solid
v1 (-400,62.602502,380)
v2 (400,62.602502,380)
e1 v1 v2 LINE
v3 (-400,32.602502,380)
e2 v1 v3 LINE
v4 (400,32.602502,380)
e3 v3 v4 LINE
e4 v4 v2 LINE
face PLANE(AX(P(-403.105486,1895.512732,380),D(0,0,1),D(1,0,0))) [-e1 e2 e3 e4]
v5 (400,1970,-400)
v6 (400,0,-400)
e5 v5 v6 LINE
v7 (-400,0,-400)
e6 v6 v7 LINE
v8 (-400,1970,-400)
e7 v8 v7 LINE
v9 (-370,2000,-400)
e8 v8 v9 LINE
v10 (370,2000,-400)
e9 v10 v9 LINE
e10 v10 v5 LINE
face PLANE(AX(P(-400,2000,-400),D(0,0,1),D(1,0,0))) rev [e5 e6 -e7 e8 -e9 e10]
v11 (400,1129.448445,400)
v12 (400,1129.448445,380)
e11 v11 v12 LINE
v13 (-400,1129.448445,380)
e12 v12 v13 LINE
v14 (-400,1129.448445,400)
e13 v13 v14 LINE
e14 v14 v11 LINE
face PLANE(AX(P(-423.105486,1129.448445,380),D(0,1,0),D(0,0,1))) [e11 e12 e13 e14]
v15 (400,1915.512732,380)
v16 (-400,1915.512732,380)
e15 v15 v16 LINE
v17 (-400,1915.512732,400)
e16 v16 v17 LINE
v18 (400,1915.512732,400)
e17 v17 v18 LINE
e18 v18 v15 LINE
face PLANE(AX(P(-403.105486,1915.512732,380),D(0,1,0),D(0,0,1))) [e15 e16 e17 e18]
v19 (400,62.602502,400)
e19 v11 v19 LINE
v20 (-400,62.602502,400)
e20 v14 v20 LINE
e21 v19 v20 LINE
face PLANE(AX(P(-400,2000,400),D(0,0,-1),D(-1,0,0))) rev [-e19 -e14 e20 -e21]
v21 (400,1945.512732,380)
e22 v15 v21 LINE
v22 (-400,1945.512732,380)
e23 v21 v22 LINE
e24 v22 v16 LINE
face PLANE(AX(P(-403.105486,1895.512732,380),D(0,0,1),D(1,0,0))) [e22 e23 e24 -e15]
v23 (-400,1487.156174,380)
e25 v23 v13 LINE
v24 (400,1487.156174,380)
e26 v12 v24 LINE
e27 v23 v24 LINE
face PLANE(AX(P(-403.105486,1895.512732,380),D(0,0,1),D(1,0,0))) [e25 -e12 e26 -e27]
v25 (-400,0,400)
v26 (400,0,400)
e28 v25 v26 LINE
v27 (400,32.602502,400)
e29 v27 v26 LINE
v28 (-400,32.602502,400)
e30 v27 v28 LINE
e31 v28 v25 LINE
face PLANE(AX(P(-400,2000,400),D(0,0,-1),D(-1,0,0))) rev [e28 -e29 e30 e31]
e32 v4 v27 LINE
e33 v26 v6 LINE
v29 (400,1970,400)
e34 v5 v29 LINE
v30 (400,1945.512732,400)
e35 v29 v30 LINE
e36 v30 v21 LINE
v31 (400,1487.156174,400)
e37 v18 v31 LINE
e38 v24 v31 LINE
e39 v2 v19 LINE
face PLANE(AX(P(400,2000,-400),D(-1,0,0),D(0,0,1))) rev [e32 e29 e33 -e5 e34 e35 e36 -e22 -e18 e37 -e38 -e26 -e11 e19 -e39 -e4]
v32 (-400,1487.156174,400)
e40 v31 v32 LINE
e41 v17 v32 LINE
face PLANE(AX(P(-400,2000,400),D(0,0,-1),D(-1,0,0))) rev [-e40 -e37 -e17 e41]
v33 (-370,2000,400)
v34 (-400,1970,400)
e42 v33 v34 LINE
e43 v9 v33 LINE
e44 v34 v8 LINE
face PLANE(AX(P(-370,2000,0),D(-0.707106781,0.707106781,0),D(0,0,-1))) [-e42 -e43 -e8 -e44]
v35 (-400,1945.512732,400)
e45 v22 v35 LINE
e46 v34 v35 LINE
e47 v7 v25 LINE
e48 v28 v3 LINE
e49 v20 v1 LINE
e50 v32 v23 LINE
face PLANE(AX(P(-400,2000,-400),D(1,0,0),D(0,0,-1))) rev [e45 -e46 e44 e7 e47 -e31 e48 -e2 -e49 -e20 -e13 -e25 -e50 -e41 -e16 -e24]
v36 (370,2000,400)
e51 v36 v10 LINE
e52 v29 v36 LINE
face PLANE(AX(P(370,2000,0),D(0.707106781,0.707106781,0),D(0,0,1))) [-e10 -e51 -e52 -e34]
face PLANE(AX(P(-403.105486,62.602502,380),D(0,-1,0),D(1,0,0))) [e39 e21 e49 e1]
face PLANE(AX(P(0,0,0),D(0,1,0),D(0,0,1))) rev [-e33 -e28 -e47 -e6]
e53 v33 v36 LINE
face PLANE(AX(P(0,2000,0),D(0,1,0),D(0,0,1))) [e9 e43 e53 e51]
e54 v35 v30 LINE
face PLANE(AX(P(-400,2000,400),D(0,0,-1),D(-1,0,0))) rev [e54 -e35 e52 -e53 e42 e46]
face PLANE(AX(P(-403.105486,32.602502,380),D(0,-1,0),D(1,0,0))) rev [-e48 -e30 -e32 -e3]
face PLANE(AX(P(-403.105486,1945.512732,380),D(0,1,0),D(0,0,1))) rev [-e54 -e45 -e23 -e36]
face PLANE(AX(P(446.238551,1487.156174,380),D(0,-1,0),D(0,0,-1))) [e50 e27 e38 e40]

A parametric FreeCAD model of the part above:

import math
import FreeCAD as App
import Part
import Sketcher

V = App.Vector
Q = App.Units.Quantity


def edges_at(feature, points):
    """Names of the edges that pass closest to the given points."""
    edges = feature.Shape.Edges
    near = lambda p: min(range(len(edges)), key=lambda i: edges[i].distToShape(Part.Vertex(*p))[0])
    return sorted({f"Edge{near(p) + 1}" for p in points})


def add_polygon(sketch, points):
    """Adds a closed chain of lines whose ends are joined by coincident constraints."""
    first, n = sketch.GeometryCount, len(points)
    for a, b in zip(points, points[1:] + points[:1]):
        sketch.addGeometry(Part.LineSegment(App.Vector(*a, 0), App.Vector(*b, 0)), False)
    for i in range(n):
        sketch.addConstraint(Sketcher.Constraint("Coincident", first + i, 2, first + (i + 1) % n, 1))

doc = App.newDocument("Part")
body = doc.addObject("PartDesign::Body", "Body")

# Sketch on XZ plane
sketch1 = body.newObject("Sketcher::SketchObject", "Sketch")
sketch1.AttachmentSupport = (doc.getObject("XZ_Plane"), [""])
sketch1.MapMode = "FlatFace"
add_polygon(sketch1, [(-400, -400), (-400, 400), (400, 400), (400, -400)])  # lines 0-3
sketch1.addConstraint(Sketcher.Constraint("Vertical", 0))
sketch1.addConstraint(Sketcher.Constraint("Horizontal", 1))
sketch1.addConstraint(Sketcher.Constraint("Vertical", 2))
sketch1.addConstraint(Sketcher.Constraint("Horizontal", 3))
sketch1.addConstraint(Sketcher.Constraint("Symmetric", 0, 2, 2, 2, -1, 1))
sketch1.addConstraint(Sketcher.Constraint("Equal", 3, 0))
sketch1.addConstraint(Sketcher.Constraint("DistanceX", 1, 1, 1, 2, Q("800 mm")))
pad1 = body.newObject("PartDesign::Pad", "Pad")
pad1.Profile = sketch1
pad1.Length = 2000
pad1.Reversed = True

# Sketch on XY plane
sketch2 = body.newObject("Sketcher::SketchObject", "Sketch001")
sketch2.AttachmentSupport = (doc.getObject("XY_Plane"), [""])
sketch2.MapMode = "FlatFace"
sketch2.AttachmentOffset = App.Placement(V(0, 0, 400), App.Rotation())
sketch2.addGeometry(Part.LineSegment(V(-453.105486, 1895.512732, 0), V(-453.105486, 82.602502, 0)), False)
sketch2.addGeometry(Part.ArcOfCircle(Part.Circle(V(-403.105486, 82.602502, 0), V(0, 0, 1), 50), math.radians(-180), math.radians(-90)), False)
sketch2.addGeometry(Part.LineSegment(V(-403.105486, 32.602502, 0), V(426.238551, 32.602502, 0)), False)
sketch2.addGeometry(Part.ArcOfCircle(Part.Circle(V(426.238551, 82.602502, 0), V(0, 0, 1), 50), math.radians(-90), math.radians(0)), False)
sketch2.addGeometry(Part.LineSegment(V(476.238551, 82.602502, 0), V(476.238551, 1895.512732, 0)), False)
sketch2.addGeometry(Part.ArcOfCircle(Part.Circle(V(426.238551, 1895.512732, 0), V(0, 0, 1), 50), math.radians(0), math.radians(90)), False)
sketch2.addGeometry(Part.LineSegment(V(426.238551, 1945.512732, 0), V(-403.105486, 1945.512732, 0)), False)
sketch2.addGeometry(Part.ArcOfCircle(Part.Circle(V(-403.105486, 1895.512732, 0), V(0, 0, 1), 50), math.radians(90), math.radians(180)), False)
sketch2.addGeometry(Part.LineSegment(V(426.238551, 62.602502, 0), V(-403.105486, 62.602502, 0)), False)
sketch2.addGeometry(Part.ArcOfCircle(Part.Circle(V(-403.105486, 82.602502, 0), V(0, 0, 1), 20), math.radians(-180), math.radians(-90)), False)
sketch2.addGeometry(Part.LineSegment(V(-423.105486, 82.602502, 0), V(-423.105486, 1129.448445, 0)), False)
sketch2.addGeometry(Part.LineSegment(V(-423.105486, 1129.448445, 0), V(446.238551, 1129.448445, 0)), False)
sketch2.addGeometry(Part.LineSegment(V(446.238551, 1129.448445, 0), V(446.238551, 82.602502, 0)), False)
sketch2.addGeometry(Part.ArcOfCircle(Part.Circle(V(426.238551, 82.602502, 0), V(0, 0, 1), 20), math.radians(-90), math.radians(0)), False)
sketch2.addGeometry(Part.ArcOfCircle(Part.Circle(V(-403.105486, 1895.512732, 0), V(0, 0, 1), 20), math.radians(90), math.radians(180)), False)
sketch2.addGeometry(Part.LineSegment(V(-403.105486, 1915.512732, 0), V(426.238551, 1915.512732, 0)), False)
sketch2.addGeometry(Part.ArcOfCircle(Part.Circle(V(426.238551, 1895.512732, 0), V(0, 0, 1), 20), math.radians(0), math.radians(90)), False)
sketch2.addGeometry(Part.LineSegment(V(446.238551, 1895.512732, 0), V(446.238551, 1487.156174, 0)), False)
sketch2.addGeometry(Part.LineSegment(V(446.238551, 1487.156174, 0), V(-423.105486, 1487.156174, 0)), False)
sketch2.addGeometry(Part.LineSegment(V(-423.105486, 1487.156174, 0), V(-423.105486, 1895.512732, 0)), False)
sketch2.addConstraint(Sketcher.Constraint("Tangent", 0, 2, 1, 1))
sketch2.addConstraint(Sketcher.Constraint("Tangent", 1, 2, 2, 1))
sketch2.addConstraint(Sketcher.Constraint("Tangent", 2, 2, 3, 1))
sketch2.addConstraint(Sketcher.Constraint("Tangent", 3, 2, 4, 1))
sketch2.addConstraint(Sketcher.Constraint("Tangent", 4, 2, 5, 1))
sketch2.addConstraint(Sketcher.Constraint("Tangent", 5, 2, 6, 1))
sketch2.addConstraint(Sketcher.Constraint("Tangent", 6, 2, 7, 1))
sketch2.addConstraint(Sketcher.Constraint("Tangent", 7, 2, 0, 1))
sketch2.addConstraint(Sketcher.Constraint("Tangent", 8, 2, 9, 2))
sketch2.addConstraint(Sketcher.Constraint("Tangent", 9, 1, 10, 1))
sketch2.addConstraint(Sketcher.Constraint("Coincident", 10, 2, 11, 1))
sketch2.addConstraint(Sketcher.Constraint("Coincident", 11, 2, 12, 1))
sketch2.addConstraint(Sketcher.Constraint("Tangent", 12, 2, 13, 2))
sketch2.addConstraint(Sketcher.Constraint("Tangent", 13, 1, 8, 1))
sketch2.addConstraint(Sketcher.Constraint("Tangent", 14, 1, 15, 1))
sketch2.addConstraint(Sketcher.Constraint("Tangent", 15, 2, 16, 2))
sketch2.addConstraint(Sketcher.Constraint("Tangent", 16, 1, 17, 1))
sketch2.addConstraint(Sketcher.Constraint("Coincident", 17, 2, 18, 1))
sketch2.addConstraint(Sketcher.Constraint("Coincident", 18, 2, 19, 1))
sketch2.addConstraint(Sketcher.Constraint("Tangent", 19, 2, 14, 2))
sketch2.addConstraint(Sketcher.Constraint("Vertical", 0))
sketch2.addConstraint(Sketcher.Constraint("Horizontal", 2))
sketch2.addConstraint(Sketcher.Constraint("Vertical", 4))
sketch2.addConstraint(Sketcher.Constraint("Horizontal", 6))
sketch2.addConstraint(Sketcher.Constraint("Horizontal", 8))
sketch2.addConstraint(Sketcher.Constraint("Vertical", 10))
sketch2.addConstraint(Sketcher.Constraint("Horizontal", 11))
sketch2.addConstraint(Sketcher.Constraint("Vertical", 12))
sketch2.addConstraint(Sketcher.Constraint("Horizontal", 15))
sketch2.addConstraint(Sketcher.Constraint("Vertical", 17))
sketch2.addConstraint(Sketcher.Constraint("Horizontal", 18))
sketch2.addConstraint(Sketcher.Constraint("Vertical", 19))
sketch2.addConstraint(Sketcher.Constraint("Coincident", 9, 3, 1, 3))
sketch2.addConstraint(Sketcher.Constraint("Coincident", 13, 3, 3, 3))
sketch2.addConstraint(Sketcher.Constraint("Coincident", 14, 3, 7, 3))
sketch2.addConstraint(Sketcher.Constraint("Coincident", 16, 3, 5, 3))
sketch2.addConstraint(Sketcher.Constraint("Equal", 1, 3))
sketch2.addConstraint(Sketcher.Constraint("Equal", 3, 5))
sketch2.addConstraint(Sketcher.Constraint("Equal", 5, 7))
sketch2.addConstraint(Sketcher.Constraint("Equal", 13, 14))
sketch2.addConstraint(Sketcher.Constraint("Radius", 1, Q("50 mm")))
sketch2.addConstraint(Sketcher.Constraint("Radius", 9, Q("20 mm")))
sketch2.addConstraint(Sketcher.Constraint("DistanceY", 0, 2, 0, 1, Q("1812.91023 mm")))
sketch2.addConstraint(Sketcher.Constraint("DistanceY", 17, 2, 17, 1, Q("408.356558 mm")))
sketch2.addConstraint(Sketcher.Constraint("DistanceY", -1, 1, 1, 3, Q("82.602502 mm")))
sketch2.addConstraint(Sketcher.Constraint("DistanceX", 2, 1, 2, 2, Q("829.344036 mm")))
sketch2.addConstraint(Sketcher.Constraint("DistanceY", 10, 1, 10, 2, Q("1046.845944 mm")))
sketch2.addConstraint(Sketcher.Constraint("DistanceX", -1, 1, 3, 3, Q("426.238551 mm")))
pocket1 = body.newObject("PartDesign::Pocket", "Pocket")
pocket1.Profile = sketch2
pocket1.Length = 20
doc.recompute()

chamfer = body.newObject("PartDesign::Chamfer", "Chamfer")
chamfer.Base = (pocket1, edges_at(pocket1, [(-400, 2000, 0), (400, 2000, 0)]))
chamfer.Size = 30

doc.recompute()
